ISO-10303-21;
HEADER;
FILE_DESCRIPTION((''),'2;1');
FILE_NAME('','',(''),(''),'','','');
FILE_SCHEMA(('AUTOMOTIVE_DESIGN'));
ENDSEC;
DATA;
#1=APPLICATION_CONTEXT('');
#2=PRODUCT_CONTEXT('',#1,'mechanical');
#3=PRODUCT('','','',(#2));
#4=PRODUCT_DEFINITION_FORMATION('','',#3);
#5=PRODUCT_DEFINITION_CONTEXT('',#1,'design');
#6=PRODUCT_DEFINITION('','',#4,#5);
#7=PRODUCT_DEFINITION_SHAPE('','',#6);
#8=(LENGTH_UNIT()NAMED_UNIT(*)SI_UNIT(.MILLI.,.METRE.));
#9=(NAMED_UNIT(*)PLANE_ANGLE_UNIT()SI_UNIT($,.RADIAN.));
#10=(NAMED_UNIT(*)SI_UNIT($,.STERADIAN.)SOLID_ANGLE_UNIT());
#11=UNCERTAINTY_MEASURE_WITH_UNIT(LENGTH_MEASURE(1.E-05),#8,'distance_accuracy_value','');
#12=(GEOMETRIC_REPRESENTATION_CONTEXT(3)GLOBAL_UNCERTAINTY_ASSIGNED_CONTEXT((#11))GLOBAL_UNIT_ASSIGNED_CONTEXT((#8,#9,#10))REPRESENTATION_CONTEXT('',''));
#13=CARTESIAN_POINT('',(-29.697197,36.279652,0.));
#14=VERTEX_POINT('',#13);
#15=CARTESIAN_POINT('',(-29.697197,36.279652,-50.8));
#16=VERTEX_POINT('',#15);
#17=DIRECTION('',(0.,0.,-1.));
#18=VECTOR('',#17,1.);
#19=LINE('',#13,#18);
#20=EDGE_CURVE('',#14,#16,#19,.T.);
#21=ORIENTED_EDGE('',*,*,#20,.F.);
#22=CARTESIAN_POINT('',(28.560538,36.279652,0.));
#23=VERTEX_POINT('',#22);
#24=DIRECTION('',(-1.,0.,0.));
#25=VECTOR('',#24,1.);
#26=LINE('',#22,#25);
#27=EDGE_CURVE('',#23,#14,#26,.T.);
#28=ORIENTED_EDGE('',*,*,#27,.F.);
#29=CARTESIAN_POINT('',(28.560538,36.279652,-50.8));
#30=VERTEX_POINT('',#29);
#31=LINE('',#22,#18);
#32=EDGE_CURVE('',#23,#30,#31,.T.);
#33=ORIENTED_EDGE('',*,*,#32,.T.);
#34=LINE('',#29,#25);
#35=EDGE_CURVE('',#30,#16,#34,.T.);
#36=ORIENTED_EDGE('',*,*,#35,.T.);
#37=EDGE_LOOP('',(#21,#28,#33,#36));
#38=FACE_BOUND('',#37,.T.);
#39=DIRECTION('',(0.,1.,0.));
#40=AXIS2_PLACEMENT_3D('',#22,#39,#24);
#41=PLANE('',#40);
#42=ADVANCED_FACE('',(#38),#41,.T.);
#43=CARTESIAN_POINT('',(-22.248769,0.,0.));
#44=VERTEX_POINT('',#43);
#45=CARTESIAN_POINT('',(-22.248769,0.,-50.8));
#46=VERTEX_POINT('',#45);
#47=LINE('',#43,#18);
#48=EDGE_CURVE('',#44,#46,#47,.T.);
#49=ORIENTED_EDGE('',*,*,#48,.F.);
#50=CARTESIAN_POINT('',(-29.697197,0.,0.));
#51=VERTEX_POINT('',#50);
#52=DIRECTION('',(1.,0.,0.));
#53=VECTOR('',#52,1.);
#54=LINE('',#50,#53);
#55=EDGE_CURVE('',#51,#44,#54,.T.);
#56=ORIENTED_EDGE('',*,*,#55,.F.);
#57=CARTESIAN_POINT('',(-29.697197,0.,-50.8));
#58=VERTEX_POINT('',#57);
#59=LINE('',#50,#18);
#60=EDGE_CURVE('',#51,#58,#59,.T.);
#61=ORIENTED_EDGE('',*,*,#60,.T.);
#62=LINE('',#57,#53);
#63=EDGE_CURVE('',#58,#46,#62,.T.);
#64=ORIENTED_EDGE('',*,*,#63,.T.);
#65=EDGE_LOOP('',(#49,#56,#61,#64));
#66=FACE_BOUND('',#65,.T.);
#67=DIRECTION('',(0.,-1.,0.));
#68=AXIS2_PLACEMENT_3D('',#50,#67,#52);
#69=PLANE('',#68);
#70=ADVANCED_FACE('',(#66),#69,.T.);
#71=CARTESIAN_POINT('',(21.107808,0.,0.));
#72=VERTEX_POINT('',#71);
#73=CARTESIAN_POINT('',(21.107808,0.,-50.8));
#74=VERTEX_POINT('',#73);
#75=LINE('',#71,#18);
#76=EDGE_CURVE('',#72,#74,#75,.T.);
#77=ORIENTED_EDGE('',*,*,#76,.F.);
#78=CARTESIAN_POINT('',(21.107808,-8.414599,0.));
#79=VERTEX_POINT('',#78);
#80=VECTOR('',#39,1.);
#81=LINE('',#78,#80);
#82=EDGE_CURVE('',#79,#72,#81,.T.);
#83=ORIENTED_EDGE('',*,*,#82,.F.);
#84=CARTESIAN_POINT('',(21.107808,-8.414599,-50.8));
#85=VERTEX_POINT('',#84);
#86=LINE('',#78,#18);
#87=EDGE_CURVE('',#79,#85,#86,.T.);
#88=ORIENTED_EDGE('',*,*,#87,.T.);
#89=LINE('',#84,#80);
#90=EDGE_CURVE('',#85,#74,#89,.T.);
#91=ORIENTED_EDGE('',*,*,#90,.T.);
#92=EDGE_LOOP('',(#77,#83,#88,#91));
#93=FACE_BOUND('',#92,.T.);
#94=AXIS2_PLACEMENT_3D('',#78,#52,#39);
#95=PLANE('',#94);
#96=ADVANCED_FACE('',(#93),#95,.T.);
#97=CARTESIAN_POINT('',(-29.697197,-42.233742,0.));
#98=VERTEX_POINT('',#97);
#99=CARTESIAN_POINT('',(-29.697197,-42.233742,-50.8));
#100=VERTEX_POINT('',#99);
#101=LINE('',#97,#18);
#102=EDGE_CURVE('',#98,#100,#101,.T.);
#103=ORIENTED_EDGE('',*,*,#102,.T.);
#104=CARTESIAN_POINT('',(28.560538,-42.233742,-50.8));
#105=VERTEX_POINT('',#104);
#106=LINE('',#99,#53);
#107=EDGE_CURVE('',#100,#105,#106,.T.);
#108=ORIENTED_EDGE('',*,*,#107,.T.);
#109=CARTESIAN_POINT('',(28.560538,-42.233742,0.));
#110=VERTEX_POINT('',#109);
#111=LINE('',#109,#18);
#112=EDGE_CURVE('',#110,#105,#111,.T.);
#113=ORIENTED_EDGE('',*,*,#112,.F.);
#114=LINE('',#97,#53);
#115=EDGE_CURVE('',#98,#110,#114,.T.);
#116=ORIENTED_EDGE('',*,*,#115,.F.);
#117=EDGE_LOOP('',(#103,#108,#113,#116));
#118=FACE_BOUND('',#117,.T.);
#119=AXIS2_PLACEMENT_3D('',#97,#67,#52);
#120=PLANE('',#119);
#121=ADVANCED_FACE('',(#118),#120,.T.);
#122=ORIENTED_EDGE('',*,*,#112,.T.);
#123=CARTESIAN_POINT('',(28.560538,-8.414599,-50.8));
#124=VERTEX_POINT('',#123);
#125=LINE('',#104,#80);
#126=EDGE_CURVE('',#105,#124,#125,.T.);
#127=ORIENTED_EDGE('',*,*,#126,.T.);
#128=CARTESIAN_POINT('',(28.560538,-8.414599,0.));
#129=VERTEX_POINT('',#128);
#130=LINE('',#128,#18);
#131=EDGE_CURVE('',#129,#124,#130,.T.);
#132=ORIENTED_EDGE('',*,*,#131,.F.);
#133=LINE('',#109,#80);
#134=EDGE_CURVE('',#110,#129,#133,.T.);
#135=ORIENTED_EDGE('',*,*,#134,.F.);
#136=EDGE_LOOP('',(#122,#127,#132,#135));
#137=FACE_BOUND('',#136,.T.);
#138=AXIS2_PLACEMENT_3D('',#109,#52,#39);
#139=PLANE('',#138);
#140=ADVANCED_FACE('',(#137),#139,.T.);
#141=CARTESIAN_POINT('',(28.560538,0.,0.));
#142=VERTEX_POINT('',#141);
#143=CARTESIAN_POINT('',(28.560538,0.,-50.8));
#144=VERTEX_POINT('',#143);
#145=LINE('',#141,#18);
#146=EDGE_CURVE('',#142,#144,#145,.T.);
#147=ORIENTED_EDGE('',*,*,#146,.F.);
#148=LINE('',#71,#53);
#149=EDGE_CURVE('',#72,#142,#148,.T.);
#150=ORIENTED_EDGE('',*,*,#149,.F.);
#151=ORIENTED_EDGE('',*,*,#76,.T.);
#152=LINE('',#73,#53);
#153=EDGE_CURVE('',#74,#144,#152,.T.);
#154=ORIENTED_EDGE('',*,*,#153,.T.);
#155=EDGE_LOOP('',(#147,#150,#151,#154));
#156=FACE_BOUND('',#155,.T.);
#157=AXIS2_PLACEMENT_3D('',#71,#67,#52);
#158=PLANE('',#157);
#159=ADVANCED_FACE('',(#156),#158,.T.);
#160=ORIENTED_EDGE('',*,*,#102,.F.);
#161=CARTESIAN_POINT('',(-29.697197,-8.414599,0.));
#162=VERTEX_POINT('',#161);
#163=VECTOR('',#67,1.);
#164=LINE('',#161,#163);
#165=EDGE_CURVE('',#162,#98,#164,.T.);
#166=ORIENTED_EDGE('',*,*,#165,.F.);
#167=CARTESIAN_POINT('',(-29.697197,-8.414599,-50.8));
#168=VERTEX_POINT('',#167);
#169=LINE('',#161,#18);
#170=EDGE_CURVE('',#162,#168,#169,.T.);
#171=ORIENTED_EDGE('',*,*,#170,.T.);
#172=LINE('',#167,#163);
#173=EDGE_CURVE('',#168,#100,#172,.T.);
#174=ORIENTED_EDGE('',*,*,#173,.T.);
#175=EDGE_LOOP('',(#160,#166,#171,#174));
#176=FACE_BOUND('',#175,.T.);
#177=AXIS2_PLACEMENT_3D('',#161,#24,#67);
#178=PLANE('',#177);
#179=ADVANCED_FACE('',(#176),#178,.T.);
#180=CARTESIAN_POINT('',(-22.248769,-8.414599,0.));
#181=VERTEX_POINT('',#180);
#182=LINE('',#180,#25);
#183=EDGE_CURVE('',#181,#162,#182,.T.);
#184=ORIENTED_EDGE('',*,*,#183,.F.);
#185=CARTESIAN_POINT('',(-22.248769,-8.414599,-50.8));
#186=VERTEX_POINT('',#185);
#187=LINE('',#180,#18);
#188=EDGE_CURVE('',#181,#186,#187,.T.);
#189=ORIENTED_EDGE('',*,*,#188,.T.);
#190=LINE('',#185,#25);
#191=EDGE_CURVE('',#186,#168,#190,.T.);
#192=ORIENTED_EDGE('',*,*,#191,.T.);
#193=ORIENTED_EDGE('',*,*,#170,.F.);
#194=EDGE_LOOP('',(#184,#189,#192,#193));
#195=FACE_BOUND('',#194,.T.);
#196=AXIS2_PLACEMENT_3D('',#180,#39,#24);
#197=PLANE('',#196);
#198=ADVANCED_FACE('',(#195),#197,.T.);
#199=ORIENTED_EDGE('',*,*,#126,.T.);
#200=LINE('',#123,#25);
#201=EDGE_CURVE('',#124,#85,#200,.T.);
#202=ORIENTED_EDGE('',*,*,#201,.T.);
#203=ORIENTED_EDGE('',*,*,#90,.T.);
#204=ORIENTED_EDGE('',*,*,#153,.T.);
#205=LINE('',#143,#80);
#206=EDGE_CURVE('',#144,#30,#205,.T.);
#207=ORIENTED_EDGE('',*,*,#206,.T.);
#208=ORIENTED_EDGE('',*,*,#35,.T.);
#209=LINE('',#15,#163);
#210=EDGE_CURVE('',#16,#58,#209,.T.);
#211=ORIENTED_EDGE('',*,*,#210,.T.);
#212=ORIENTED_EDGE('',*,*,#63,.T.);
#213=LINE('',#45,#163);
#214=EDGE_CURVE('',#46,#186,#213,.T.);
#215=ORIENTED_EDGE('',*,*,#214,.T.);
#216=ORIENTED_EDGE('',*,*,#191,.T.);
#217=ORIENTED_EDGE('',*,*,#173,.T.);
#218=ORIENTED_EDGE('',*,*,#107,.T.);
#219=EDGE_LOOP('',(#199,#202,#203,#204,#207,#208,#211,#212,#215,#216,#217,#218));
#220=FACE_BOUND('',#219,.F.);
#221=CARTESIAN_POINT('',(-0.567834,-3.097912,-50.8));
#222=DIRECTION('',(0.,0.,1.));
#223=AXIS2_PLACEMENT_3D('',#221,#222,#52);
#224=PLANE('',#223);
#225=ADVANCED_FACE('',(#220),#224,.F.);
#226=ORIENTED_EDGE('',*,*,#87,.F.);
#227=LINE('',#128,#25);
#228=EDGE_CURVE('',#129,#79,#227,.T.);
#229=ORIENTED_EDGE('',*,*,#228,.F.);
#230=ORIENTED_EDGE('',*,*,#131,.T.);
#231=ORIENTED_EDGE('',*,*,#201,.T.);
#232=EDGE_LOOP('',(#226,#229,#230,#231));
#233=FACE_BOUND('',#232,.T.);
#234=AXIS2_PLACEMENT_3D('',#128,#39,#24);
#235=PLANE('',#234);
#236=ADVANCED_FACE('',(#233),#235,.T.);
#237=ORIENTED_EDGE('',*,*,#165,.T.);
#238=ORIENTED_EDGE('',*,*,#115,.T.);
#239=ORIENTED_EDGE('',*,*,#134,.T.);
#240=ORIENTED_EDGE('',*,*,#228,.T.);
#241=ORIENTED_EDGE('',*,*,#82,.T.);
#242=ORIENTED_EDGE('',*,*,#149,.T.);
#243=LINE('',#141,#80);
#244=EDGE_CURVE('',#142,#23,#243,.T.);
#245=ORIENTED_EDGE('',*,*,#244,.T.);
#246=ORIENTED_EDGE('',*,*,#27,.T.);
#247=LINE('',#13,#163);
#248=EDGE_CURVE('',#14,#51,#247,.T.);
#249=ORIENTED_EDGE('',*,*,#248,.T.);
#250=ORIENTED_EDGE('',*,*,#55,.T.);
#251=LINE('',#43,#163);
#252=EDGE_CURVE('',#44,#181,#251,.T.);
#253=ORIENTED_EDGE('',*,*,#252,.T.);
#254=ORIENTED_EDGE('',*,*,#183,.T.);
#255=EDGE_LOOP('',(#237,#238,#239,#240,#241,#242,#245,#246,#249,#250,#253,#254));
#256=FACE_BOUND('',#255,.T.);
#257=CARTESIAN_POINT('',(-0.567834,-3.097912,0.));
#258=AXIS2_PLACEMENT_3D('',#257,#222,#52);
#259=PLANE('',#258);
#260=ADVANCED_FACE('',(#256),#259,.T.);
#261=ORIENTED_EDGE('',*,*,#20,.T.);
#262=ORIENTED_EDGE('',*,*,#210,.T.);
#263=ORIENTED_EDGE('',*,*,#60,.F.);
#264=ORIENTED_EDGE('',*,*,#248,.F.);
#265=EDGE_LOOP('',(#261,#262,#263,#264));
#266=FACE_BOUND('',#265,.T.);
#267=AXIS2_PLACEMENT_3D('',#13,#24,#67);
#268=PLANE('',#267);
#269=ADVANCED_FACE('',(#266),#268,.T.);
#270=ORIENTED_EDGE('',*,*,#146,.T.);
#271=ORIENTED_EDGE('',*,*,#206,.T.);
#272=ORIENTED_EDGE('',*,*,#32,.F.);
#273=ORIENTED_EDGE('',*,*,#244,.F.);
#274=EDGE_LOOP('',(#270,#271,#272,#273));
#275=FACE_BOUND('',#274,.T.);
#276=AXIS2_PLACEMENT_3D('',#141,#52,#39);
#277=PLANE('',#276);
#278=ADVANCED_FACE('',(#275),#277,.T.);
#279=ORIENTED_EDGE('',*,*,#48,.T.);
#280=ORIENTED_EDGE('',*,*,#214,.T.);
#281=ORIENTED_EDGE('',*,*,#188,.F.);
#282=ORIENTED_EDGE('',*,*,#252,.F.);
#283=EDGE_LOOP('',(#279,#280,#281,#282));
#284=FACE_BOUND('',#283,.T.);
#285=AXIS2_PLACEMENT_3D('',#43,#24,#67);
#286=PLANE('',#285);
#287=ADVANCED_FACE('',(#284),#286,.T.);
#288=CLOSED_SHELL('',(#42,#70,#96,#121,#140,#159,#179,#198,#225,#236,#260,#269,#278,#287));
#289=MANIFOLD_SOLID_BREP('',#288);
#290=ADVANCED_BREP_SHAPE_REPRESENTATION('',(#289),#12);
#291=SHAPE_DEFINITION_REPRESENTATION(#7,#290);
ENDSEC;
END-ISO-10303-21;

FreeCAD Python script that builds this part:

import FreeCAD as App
import Part
import Sketcher

V = App.Vector
Q = App.Units.Quantity


def add_polygon(sketch, points):
    """Adds a closed chain of lines whose ends are joined by coincident constraints."""
    first, n = sketch.GeometryCount, len(points)
    for a, b in zip(points, points[1:] + points[:1]):
        sketch.addGeometry(Part.LineSegment(App.Vector(*a, 0), App.Vector(*b, 0)), False)
    for i in range(n):
        sketch.addConstraint(Sketcher.Constraint("Coincident", first + i, 2, first + (i + 1) % n, 1))

doc = App.newDocument("Part")
body = doc.addObject("PartDesign::Body", "Body")

sketch1 = doc.addObject("Sketcher::SketchObject", "Sketch")
body.addObject(sketch1)
sketch1.AttachmentSupport = (doc.XY_Plane, [""])
sketch1.MapMode = "FlatFace"
add_polygon(sketch1, [(29, 36), (-30, 36), (-30, 0), (-22, 0), (-22, -8), (-30, -8), (-30, -42), (29, -42), (29, -8), (21, -8), (21, 0), (29, 0)])
sketch1.addConstraint([
    Sketcher.Constraint("Horizontal", 0),
    Sketcher.Constraint("Vertical", 1),
    Sketcher.Constraint("Horizontal", 2),
    Sketcher.Constraint("Vertical", 3),
    Sketcher.Constraint("Horizontal", 4),
    Sketcher.Constraint("Vertical", 5),
    Sketcher.Constraint("Horizontal", 6),
    Sketcher.Constraint("Vertical", 7),
    Sketcher.Constraint("Horizontal", 8),
    Sketcher.Constraint("Vertical", 9),
    Sketcher.Constraint("Horizontal", 10),
    Sketcher.Constraint("Vertical", 11),
    Sketcher.Constraint("PointOnObject", 1, 2, -1),
    Sketcher.Constraint("PointOnObject", 9, 2, -1),
    Sketcher.Constraint("Horizontal", 4, 2, 7, 2),
    Sketcher.Constraint("Vertical", 1, 2, 4, 2),
    Sketcher.Constraint("Vertical", 7, 2, 10, 2),
    Sketcher.Constraint("DistanceY", 3, 2, 3, 1, 8.414599),
    Sketcher.Constraint("DistanceX", 8, 2, 8, 1, 7.45273),
    Sketcher.Constraint("DistanceX", 0, 2, 0, 1, 58.257735),
    Sketcher.Constraint("DistanceX", 2, 1, 2, 2, 7.448428),
    Sketcher.Constraint("DistanceY", 1, 2, 1, 1, 36.279652),
    Sketcher.Constraint("DistanceY", 5, 2, 5, 1, 33.819143),
    Sketcher.Constraint("DistanceX", 2, 2, -1, 1, 22.248769),
])
pad1 = doc.addObject("PartDesign::Pad", "Pad")
body.addObject(pad1)
pad1.Profile = sketch1
pad1.Length = Q("2 in")
pad1.Reversed = True

doc.recompute()
